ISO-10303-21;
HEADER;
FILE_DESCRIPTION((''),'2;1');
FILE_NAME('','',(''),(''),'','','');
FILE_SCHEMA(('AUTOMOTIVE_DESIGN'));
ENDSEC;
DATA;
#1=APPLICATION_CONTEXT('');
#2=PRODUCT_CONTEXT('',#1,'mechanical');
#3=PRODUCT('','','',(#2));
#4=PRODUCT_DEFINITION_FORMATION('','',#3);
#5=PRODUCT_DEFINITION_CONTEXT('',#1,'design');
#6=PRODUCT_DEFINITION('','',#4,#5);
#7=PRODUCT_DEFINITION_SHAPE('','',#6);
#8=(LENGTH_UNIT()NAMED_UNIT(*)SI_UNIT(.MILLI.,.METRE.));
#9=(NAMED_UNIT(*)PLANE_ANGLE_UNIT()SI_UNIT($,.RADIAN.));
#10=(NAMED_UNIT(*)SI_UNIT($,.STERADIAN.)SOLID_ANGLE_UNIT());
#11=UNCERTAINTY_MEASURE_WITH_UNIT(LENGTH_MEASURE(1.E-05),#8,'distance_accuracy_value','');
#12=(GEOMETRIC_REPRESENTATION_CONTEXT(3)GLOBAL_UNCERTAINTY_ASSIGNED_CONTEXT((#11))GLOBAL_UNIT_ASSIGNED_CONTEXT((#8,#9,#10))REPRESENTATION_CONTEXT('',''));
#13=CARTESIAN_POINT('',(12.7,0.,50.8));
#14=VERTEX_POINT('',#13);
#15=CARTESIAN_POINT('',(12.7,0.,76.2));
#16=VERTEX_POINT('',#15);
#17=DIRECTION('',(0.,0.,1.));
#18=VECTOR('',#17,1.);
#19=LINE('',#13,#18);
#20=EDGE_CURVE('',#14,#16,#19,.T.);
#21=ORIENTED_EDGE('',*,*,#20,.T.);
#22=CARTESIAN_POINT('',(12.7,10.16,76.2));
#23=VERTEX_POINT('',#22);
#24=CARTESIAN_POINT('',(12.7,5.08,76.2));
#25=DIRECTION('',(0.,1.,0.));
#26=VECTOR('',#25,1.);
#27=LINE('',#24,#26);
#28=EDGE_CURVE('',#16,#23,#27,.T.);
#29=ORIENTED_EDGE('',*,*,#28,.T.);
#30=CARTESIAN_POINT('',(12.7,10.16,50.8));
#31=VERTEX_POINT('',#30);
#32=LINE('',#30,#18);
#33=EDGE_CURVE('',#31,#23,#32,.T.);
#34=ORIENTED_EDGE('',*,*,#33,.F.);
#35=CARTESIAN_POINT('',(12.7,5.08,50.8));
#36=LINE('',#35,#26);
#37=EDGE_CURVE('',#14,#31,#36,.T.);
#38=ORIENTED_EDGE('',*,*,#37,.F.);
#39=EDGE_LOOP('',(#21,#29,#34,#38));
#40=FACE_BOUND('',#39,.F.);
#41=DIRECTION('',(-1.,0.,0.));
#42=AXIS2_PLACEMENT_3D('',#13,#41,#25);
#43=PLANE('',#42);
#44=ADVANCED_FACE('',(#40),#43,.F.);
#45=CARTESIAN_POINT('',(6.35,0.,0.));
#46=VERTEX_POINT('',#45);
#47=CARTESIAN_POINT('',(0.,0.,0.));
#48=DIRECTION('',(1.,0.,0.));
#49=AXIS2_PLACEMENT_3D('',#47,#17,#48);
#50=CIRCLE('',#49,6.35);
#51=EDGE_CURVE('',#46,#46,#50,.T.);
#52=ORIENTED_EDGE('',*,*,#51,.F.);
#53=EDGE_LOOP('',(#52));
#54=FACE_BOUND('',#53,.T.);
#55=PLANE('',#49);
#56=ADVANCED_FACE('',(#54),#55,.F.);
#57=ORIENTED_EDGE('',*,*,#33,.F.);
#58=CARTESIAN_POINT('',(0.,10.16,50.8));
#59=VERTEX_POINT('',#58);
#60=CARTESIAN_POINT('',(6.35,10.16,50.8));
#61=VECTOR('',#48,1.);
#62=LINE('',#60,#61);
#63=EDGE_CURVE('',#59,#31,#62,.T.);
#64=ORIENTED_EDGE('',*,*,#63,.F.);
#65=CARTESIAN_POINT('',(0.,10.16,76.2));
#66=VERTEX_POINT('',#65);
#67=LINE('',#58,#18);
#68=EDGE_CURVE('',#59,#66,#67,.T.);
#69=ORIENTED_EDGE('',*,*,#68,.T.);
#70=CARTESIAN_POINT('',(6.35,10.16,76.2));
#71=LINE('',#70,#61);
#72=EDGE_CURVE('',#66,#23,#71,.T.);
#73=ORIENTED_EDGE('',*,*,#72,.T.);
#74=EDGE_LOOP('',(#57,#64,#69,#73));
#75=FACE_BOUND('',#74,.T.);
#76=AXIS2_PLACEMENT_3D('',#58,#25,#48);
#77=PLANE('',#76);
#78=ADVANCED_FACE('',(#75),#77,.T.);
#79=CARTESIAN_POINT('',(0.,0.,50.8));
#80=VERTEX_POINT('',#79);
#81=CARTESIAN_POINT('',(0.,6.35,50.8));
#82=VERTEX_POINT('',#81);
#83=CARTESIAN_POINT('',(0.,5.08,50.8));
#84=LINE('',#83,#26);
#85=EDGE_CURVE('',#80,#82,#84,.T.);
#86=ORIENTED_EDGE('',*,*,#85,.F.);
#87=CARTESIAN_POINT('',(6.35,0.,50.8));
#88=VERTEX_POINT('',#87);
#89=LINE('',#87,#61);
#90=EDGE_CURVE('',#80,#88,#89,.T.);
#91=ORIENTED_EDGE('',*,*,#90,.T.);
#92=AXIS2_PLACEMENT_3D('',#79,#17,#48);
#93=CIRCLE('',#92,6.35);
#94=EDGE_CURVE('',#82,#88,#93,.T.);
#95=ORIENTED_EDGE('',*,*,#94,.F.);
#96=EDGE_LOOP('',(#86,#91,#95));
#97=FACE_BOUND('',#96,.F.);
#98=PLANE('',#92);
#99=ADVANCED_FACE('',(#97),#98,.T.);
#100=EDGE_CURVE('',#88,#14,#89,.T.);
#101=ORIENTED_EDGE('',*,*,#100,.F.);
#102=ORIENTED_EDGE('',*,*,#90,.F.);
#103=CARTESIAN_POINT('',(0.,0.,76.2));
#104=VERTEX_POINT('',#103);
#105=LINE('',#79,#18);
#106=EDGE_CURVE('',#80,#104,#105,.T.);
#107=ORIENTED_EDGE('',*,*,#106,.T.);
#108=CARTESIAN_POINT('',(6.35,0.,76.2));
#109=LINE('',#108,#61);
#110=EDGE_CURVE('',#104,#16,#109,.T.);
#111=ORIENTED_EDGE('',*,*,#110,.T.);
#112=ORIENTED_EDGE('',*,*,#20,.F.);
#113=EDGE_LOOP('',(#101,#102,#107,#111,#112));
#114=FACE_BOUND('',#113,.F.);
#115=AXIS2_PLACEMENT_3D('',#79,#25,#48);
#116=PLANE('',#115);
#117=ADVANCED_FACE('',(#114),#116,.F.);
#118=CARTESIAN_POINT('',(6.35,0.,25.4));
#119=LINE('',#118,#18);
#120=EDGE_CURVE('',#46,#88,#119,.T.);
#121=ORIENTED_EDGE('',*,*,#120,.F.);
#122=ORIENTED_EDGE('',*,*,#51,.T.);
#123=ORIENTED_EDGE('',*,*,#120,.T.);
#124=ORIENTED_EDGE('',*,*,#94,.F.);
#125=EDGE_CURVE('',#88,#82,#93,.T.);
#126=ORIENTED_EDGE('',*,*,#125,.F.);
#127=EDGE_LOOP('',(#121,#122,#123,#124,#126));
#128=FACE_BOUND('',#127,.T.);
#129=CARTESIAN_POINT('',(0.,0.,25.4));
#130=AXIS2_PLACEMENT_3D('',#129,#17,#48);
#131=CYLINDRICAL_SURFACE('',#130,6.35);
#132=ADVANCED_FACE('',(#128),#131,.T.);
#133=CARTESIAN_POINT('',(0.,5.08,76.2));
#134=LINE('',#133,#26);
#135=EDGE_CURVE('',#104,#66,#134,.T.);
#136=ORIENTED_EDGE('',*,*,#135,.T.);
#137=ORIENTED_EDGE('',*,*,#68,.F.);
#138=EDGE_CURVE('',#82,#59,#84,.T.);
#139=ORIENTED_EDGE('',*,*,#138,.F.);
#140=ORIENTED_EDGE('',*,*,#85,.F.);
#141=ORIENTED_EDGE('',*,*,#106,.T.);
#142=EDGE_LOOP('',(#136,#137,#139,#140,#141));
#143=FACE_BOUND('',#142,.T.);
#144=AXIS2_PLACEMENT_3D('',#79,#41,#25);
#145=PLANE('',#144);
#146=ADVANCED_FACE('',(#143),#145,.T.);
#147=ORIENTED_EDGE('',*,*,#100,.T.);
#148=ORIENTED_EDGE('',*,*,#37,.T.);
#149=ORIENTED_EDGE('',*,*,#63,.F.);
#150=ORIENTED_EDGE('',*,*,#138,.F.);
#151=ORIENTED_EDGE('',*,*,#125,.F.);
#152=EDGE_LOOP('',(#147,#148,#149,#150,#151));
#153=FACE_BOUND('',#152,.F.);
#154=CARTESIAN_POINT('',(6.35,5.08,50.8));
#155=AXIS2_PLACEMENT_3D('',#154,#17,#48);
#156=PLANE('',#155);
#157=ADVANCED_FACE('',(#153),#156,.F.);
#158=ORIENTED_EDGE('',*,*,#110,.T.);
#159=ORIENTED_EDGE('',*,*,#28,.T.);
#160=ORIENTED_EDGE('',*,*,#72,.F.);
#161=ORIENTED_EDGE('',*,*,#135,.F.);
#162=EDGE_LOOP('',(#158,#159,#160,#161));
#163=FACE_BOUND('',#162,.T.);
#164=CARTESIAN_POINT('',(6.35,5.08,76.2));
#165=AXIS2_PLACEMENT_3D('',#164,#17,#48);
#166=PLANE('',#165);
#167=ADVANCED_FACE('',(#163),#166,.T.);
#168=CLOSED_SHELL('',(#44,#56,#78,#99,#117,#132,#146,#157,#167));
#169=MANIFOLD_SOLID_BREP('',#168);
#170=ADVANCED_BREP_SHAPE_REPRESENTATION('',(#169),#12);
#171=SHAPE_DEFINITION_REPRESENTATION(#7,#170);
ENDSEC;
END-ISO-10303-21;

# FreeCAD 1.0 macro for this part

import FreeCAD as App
import Part
import Sketcher
Q = App.Units.Quantity

doc = App.newDocument("Part")
params = doc.addObject("Spreadsheet::Sheet", "Params")
for row, (alias, value) in enumerate([
    ("sketch1_height", "2 in"),
    ("sketch1_width", "0.25 in"),
    ("revolution_angle", "360 deg"),
    ("sketch2_width", "0.5 in"),
    ("sketch2_height", "0.4 in"),
    ("pad1_length", "1 in"),
], start=1):
    params.set(f"A{row}", alias)
    params.set(f"B{row}", "=" + value)
    params.setAlias(f"B{row}", alias)

body = doc.addObject("PartDesign::Body", "Body")

sketch1 = body.newObject("Sketcher::SketchObject", "Sketch")
sketch1.AttachmentSupport = (doc.getObject("XZ_Plane"), [""])
sketch1.MapMode = "FlatFace"
sketch1.addGeometry([
    Part.LineSegment(App.Vector(0, 50.8, 0), App.Vector(0, 0, 0)),
    Part.LineSegment(App.Vector(0, 0, 0), App.Vector(6.35, 0, 0)),
    Part.LineSegment(App.Vector(6.35, 0, 0), App.Vector(6.35, 50.8, 0)),
    Part.LineSegment(App.Vector(6.35, 50.8, 0), App.Vector(0, 50.8, 0)),
], False)
sketch1.addConstraint([
    Sketcher.Constraint("Coincident", 0, 2, 1, 1),
    Sketcher.Constraint("Coincident", 1, 2, 2, 1),
    Sketcher.Constraint("Coincident", 2, 2, 3, 1),
    Sketcher.Constraint("Coincident", 3, 2, 0, 1),
    Sketcher.Constraint("Vertical", 0),
    Sketcher.Constraint("Horizontal", 1),
    Sketcher.Constraint("Vertical", 2),
    Sketcher.Constraint("Horizontal", 3),
    Sketcher.Constraint("Coincident", 0, 2, -1, 1),
    Sketcher.Constraint("DistanceY", 0, 2, 0, 1, Q("2 in")),
    Sketcher.Constraint("DistanceX", 1, 1, 1, 2, Q("0.25 in")),
])
sketch1.setExpression("Constraints[9]", "Params.sketch1_height")
sketch1.setExpression("Constraints[10]", "Params.sketch1_width")
revolution = body.newObject("PartDesign::Revolution", "Revolution")
revolution.Profile = sketch1
revolution.ReferenceAxis = (sketch1, ["V_Axis"])
revolution.setExpression("Angle", "Params.revolution_angle")

sketch2 = body.newObject("Sketcher::SketchObject", "Sketch001")
sketch2.AttachmentSupport = (doc.getObject("XY_Plane"), [""])
sketch2.MapMode = "FlatFace"
sketch2.AttachmentOffset = App.Placement(App.Vector(0, 0, 2 * 25.4), App.Rotation())
sketch2.addGeometry([
    Part.LineSegment(App.Vector(0, 10.16, 0), App.Vector(0, 0, 0)),
    Part.LineSegment(App.Vector(0, 0, 0), App.Vector(12.7, 0, 0)),
    Part.LineSegment(App.Vector(12.7, 0, 0), App.Vector(12.7, 10.16, 0)),
    Part.LineSegment(App.Vector(12.7, 10.16, 0), App.Vector(0, 10.16, 0)),
], False)
sketch2.addConstraint([
    Sketcher.Constraint("Coincident", 0, 2, 1, 1),
    Sketcher.Constraint("Coincident", 1, 2, 2, 1),
    Sketcher.Constraint("Coincident", 2, 2, 3, 1),
    Sketcher.Constraint("Coincident", 3, 2, 0, 1),
    Sketcher.Constraint("Vertical", 0),
    Sketcher.Constraint("Horizontal", 1),
    Sketcher.Constraint("Vertical", 2),
    Sketcher.Constraint("Horizontal", 3),
    Sketcher.Constraint("Coincident", 0, 2, -1, 1),
    Sketcher.Constraint("DistanceX", 1, 1, 1, 2, Q("0.5 in")),
    Sketcher.Constraint("DistanceY", 0, 2, 0, 1, Q("0.4 in")),
])
sketch2.setExpression("Constraints[9]", "Params.sketch2_width")
sketch2.setExpression("Constraints[10]", "Params.sketch2_height")
pad1 = body.newObject("PartDesign::Pad", "Pad")
pad1.Profile = sketch2
pad1.setExpression("Length", "Params.pad1_length")

doc.recompute()
